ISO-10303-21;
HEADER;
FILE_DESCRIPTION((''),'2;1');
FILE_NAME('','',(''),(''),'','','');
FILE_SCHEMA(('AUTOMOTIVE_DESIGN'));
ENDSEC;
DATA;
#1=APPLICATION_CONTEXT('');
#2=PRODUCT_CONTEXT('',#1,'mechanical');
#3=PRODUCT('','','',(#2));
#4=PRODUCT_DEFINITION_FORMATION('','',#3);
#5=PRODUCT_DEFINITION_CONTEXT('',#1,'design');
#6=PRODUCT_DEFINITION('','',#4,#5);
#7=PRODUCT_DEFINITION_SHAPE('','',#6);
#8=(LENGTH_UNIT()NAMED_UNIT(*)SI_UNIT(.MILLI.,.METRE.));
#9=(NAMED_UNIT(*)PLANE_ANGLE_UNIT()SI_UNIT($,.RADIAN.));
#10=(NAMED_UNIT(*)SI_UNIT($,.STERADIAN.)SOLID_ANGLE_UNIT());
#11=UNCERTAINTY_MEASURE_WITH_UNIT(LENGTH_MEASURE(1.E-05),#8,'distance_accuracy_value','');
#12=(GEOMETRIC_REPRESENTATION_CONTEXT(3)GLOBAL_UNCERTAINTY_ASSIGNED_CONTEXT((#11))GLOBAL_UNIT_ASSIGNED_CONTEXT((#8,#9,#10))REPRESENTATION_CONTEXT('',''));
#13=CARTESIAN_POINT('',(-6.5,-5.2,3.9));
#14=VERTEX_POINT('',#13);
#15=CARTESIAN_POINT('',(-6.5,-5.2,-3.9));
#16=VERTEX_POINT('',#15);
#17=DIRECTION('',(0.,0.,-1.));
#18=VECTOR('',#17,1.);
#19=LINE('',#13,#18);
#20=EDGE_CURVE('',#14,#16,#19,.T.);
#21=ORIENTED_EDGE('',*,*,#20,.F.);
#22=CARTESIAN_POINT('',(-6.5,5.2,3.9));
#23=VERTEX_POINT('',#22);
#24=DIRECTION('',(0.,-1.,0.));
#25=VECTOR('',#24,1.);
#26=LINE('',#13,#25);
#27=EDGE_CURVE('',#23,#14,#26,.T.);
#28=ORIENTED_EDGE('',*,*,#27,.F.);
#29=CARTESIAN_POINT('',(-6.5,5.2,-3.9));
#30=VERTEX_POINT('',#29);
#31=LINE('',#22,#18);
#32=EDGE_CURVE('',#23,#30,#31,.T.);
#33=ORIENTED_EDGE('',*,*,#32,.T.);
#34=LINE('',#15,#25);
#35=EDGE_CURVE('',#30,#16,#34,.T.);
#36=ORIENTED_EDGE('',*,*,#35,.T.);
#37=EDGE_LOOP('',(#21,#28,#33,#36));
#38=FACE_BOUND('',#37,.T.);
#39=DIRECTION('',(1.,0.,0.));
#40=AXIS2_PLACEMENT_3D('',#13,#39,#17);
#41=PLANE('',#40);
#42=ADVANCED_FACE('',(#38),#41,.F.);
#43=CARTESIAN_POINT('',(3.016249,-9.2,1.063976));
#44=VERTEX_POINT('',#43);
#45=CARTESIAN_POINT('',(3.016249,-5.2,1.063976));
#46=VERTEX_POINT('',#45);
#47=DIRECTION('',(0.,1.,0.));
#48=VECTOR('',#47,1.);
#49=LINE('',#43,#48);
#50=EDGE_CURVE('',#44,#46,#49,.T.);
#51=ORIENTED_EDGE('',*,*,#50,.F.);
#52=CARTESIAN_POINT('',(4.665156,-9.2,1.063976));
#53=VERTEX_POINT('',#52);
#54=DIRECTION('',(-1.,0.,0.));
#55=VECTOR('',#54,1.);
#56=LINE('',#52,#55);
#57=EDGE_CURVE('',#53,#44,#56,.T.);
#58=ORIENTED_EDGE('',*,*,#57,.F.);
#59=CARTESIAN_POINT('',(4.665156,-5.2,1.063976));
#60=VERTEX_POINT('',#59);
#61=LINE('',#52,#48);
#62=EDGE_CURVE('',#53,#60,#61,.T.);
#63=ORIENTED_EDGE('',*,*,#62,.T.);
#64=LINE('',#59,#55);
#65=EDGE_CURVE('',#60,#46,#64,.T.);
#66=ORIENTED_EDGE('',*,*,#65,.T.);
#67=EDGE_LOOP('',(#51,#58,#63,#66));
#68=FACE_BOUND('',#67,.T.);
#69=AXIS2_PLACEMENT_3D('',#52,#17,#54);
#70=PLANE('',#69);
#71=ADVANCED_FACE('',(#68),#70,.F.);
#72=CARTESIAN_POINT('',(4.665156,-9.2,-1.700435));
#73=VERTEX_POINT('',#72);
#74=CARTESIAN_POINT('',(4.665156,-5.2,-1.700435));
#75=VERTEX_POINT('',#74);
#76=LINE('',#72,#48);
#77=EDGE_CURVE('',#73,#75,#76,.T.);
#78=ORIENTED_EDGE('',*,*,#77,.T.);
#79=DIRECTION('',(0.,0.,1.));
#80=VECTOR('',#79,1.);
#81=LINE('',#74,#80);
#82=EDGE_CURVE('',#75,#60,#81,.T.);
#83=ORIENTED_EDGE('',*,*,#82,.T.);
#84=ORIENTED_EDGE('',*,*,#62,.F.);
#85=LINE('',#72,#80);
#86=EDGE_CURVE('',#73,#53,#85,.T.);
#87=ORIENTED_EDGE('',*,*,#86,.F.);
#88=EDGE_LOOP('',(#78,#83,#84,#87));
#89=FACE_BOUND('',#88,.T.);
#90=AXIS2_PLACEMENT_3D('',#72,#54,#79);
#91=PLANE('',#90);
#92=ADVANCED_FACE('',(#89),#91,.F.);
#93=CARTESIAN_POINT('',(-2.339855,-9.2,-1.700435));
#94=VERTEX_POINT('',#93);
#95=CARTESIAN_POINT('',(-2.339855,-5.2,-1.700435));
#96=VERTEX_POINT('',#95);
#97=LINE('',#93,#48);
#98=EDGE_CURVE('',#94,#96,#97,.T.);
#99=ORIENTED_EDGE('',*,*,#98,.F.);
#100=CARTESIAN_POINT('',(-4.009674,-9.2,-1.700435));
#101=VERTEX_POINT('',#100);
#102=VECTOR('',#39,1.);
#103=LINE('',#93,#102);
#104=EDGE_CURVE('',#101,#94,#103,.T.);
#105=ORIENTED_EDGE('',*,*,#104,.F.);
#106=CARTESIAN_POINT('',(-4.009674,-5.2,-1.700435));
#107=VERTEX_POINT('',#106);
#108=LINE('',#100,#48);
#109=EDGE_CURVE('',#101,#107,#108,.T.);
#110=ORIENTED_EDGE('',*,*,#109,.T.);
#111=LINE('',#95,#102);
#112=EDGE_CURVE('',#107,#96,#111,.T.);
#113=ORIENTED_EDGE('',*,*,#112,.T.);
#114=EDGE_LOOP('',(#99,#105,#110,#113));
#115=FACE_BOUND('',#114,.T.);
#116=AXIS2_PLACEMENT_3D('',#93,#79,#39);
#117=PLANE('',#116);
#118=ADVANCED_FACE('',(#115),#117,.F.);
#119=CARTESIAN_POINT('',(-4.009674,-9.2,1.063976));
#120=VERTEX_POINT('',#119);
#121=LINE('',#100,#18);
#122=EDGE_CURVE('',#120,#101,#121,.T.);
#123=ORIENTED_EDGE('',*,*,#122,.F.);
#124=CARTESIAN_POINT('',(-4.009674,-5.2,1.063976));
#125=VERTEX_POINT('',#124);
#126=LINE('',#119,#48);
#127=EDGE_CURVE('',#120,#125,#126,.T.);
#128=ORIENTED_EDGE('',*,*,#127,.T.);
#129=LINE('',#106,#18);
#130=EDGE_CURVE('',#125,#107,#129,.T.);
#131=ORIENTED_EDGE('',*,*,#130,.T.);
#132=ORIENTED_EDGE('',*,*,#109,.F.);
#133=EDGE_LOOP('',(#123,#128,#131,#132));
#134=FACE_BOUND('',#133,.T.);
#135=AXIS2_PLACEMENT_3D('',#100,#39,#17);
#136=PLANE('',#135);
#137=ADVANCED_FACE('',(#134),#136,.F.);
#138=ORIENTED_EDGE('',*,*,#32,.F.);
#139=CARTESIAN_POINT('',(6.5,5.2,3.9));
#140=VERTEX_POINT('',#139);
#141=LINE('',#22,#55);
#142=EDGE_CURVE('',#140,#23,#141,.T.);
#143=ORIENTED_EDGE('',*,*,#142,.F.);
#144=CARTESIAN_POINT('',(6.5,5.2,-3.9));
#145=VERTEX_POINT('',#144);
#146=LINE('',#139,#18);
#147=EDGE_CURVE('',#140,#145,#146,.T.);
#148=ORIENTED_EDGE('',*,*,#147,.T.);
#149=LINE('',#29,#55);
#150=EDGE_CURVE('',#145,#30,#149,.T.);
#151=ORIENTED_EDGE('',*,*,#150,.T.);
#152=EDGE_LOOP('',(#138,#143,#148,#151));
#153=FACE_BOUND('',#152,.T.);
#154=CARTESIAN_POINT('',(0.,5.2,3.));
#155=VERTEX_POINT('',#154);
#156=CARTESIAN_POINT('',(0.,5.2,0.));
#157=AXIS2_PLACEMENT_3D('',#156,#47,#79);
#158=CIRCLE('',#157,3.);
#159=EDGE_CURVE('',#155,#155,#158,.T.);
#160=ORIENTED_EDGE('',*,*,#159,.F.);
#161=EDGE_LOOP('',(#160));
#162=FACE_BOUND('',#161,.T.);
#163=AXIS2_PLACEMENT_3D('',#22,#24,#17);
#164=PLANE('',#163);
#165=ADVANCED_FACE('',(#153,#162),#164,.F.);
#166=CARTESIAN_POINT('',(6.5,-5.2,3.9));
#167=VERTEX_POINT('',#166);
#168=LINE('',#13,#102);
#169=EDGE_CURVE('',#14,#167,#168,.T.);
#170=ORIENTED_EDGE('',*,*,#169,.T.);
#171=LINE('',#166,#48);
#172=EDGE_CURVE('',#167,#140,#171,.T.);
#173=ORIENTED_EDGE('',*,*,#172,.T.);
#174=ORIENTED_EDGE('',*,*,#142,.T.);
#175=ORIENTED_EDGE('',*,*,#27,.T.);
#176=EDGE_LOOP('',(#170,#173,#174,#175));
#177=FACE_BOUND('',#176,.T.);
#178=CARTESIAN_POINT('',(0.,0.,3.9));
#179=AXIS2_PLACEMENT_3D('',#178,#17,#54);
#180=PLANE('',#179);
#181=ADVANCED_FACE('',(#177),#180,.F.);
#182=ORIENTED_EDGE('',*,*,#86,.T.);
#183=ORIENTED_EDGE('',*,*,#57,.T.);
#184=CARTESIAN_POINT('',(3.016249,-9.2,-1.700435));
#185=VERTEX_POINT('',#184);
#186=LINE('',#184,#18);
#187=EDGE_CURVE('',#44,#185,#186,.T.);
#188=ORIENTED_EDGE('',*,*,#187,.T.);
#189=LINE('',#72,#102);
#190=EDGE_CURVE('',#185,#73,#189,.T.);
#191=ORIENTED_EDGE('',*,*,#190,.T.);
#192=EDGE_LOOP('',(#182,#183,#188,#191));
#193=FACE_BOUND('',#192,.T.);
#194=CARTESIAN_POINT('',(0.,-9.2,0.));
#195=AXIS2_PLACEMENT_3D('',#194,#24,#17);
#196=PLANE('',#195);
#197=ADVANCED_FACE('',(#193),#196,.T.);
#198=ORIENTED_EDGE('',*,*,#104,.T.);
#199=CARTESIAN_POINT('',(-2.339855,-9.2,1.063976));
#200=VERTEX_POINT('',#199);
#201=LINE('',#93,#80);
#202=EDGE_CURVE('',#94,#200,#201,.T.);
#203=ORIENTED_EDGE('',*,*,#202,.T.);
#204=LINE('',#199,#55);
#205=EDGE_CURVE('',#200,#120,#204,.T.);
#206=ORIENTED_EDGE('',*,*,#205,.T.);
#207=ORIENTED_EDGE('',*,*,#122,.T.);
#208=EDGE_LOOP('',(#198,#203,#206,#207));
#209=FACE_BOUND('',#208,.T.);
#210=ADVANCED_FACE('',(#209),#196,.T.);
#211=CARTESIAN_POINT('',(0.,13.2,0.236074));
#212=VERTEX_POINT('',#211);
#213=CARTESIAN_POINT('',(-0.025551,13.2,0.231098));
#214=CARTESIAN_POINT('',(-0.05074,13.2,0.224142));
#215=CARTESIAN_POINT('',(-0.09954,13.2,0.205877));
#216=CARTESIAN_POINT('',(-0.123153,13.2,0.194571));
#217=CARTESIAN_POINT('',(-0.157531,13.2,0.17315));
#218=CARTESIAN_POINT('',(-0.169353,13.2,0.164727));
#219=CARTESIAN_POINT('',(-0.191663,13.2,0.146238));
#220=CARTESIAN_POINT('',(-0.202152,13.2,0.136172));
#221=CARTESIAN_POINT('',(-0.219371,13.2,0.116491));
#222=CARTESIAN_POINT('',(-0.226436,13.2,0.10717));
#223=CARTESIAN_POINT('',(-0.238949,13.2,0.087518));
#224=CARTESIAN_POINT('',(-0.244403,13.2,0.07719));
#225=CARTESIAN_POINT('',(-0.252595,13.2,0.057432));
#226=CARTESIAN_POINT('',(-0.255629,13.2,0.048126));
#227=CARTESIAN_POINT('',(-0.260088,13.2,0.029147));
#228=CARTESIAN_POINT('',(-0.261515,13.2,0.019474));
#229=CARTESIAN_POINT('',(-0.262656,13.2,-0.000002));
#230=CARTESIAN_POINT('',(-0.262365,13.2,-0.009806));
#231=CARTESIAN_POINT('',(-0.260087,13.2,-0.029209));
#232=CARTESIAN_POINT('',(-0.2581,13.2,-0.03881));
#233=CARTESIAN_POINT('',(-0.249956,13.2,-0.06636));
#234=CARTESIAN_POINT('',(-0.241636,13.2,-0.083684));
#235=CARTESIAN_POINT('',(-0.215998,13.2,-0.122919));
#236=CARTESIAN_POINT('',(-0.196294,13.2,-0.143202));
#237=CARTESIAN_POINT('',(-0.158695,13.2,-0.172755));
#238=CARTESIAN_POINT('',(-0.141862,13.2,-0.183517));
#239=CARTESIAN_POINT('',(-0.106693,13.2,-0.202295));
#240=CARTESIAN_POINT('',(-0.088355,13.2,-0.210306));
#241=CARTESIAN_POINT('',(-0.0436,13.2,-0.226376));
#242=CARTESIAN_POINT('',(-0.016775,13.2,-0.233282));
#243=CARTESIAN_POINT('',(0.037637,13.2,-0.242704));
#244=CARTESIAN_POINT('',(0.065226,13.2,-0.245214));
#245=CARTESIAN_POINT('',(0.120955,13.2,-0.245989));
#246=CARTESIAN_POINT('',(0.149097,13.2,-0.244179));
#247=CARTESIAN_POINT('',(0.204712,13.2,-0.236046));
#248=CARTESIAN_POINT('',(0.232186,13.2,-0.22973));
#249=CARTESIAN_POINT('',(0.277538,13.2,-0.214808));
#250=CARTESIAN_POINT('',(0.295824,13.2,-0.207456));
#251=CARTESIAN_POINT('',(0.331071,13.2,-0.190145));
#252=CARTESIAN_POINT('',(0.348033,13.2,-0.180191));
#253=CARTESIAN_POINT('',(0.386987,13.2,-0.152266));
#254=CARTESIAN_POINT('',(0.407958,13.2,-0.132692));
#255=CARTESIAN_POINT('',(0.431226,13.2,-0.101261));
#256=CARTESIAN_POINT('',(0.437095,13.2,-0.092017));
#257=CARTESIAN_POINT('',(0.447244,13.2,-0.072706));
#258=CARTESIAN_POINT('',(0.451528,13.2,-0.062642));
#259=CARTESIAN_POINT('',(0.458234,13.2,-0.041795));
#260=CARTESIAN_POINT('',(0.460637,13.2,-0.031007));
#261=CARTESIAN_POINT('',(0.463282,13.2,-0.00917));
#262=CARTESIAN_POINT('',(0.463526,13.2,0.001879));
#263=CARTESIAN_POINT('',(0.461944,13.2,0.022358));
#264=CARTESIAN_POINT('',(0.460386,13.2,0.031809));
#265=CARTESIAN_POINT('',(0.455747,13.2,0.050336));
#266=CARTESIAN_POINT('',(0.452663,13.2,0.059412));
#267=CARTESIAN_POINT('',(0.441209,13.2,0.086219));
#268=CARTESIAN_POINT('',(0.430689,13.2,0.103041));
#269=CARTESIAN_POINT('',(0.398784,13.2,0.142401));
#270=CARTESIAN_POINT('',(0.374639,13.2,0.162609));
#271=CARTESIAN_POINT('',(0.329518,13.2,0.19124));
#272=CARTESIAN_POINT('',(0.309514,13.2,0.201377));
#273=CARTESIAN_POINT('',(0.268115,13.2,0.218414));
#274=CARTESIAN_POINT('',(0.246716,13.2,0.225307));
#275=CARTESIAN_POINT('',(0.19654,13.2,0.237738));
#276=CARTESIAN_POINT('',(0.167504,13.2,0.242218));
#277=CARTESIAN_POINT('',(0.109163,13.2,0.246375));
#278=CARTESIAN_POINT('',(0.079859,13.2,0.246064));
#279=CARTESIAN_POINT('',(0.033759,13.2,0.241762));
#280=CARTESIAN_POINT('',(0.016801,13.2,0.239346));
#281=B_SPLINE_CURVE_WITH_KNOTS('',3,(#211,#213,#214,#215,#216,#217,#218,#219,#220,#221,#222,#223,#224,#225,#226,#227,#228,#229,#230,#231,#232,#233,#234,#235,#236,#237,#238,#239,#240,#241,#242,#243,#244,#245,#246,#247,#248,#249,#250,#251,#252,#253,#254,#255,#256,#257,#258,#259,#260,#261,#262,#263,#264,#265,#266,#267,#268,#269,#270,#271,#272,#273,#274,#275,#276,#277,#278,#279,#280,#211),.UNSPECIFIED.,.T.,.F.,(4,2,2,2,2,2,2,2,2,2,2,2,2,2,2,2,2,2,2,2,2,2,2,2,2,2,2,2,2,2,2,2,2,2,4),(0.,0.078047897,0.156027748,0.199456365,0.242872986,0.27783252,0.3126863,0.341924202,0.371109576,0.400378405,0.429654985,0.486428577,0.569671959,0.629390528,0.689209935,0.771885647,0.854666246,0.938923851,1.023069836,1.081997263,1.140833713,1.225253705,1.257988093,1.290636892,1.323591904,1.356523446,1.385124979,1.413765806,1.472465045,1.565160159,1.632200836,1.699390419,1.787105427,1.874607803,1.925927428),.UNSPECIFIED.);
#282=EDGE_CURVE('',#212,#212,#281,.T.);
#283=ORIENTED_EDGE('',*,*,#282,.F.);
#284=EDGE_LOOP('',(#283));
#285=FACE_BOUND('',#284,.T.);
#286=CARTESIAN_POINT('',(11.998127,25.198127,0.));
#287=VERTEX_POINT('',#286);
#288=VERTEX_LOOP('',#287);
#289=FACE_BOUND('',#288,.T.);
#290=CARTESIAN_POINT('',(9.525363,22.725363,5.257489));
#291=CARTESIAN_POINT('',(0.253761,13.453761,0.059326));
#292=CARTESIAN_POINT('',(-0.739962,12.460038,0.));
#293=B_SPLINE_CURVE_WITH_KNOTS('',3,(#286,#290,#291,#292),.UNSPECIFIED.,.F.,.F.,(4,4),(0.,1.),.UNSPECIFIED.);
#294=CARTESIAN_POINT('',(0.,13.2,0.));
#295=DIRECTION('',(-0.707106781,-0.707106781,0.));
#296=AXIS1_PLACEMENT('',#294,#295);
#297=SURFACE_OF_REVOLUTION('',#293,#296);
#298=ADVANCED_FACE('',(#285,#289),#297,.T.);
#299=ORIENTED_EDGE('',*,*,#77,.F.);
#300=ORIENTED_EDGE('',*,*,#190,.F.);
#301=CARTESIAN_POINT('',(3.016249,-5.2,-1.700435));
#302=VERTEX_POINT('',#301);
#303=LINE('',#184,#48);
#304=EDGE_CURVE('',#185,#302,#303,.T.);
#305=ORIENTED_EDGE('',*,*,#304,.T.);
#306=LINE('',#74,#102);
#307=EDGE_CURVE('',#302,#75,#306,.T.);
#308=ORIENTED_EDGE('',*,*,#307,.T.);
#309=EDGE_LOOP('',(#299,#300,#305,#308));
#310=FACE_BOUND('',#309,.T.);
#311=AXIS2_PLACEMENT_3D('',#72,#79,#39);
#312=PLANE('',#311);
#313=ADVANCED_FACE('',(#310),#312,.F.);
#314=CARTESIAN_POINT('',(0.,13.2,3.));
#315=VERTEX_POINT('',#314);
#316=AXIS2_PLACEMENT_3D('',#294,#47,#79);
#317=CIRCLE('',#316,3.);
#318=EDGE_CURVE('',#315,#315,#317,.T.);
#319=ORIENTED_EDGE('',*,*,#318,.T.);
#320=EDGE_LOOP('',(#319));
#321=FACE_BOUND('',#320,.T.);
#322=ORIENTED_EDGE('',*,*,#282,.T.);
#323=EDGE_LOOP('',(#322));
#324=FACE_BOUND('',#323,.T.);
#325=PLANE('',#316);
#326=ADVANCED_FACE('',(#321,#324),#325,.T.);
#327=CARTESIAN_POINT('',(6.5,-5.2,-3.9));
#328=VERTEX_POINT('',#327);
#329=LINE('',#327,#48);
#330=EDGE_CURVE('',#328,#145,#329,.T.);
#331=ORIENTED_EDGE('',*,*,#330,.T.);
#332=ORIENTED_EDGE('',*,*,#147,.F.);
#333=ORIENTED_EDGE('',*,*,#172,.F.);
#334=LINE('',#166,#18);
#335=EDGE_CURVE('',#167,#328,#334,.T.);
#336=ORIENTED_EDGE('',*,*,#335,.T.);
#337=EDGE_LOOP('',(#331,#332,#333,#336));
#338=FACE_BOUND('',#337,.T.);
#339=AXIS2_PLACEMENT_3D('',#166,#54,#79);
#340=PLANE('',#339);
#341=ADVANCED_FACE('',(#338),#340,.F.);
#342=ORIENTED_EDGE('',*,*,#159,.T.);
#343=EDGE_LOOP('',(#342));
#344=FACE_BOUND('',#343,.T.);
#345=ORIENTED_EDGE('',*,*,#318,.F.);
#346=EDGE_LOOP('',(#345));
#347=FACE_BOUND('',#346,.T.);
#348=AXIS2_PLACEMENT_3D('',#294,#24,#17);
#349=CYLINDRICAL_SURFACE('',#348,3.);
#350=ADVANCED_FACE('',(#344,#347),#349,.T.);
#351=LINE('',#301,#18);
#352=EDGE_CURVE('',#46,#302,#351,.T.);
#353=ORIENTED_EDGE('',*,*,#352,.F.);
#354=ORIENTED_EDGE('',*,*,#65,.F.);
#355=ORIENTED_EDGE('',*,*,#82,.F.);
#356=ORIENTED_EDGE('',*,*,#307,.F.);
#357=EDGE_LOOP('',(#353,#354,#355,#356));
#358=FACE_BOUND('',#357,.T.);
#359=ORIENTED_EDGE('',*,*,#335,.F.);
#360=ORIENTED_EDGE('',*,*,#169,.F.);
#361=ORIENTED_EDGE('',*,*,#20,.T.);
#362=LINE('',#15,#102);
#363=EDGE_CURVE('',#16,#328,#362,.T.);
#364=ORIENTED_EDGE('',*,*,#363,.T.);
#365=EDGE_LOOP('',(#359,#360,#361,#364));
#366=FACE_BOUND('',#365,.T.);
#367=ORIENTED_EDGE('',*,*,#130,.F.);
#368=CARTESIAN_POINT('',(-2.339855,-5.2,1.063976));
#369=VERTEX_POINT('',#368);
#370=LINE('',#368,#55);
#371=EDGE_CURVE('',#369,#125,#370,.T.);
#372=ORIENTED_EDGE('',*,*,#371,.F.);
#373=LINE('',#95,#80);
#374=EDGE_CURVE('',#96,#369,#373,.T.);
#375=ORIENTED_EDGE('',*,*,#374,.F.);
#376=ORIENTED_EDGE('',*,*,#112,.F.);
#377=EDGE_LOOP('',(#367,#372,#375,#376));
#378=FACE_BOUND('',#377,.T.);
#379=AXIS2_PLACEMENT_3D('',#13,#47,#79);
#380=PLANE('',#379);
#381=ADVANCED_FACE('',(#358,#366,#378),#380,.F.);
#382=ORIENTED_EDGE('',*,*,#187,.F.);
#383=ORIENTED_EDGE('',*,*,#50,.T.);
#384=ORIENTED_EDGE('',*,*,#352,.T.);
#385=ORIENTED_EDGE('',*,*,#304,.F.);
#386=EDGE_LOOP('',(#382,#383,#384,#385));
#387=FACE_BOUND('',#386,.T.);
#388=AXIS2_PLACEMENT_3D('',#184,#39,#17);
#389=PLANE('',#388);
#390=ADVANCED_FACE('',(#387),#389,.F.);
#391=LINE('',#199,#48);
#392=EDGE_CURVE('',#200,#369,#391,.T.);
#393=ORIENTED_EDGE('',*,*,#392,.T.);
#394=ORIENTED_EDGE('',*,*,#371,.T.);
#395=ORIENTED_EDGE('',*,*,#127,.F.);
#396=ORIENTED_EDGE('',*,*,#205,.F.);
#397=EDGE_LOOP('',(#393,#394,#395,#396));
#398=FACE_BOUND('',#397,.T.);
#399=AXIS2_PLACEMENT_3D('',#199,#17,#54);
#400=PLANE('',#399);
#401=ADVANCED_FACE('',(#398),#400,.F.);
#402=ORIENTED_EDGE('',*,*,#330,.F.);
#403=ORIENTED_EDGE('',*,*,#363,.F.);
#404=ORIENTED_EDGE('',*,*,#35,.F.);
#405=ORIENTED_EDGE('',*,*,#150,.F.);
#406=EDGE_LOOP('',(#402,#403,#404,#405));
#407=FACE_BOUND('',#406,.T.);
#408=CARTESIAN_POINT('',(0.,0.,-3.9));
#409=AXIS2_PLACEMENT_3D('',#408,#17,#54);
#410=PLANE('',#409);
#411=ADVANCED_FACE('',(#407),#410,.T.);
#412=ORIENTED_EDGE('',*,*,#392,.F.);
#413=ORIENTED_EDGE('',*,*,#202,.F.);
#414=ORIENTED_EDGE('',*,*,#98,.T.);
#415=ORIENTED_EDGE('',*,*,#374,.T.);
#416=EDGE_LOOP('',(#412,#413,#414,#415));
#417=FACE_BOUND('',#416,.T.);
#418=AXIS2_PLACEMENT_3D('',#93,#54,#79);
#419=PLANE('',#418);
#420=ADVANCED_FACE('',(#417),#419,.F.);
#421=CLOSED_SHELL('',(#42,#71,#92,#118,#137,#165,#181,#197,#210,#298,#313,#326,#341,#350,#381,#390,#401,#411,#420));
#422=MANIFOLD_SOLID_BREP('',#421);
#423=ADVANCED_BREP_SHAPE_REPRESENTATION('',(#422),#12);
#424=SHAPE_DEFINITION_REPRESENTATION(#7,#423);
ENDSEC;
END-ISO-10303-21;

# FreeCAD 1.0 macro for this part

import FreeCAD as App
import Part
import Sketcher
from FreeCAD import Vector

doc = App.newDocument("Part")
body = doc.addObject("PartDesign::Body", "Body")

sketch1 = doc.addObject("Sketcher::SketchObject", "Sketch")
body.addObject(sketch1)
sketch1.AttachmentSupport = (doc.XY_Plane, [""])
sketch1.MapMode = "FlatFace"
sketch1.addGeometry([
    Part.LineSegment(Vector(-6.5, 5.2, 0), Vector(-6.5, -5.2, 0)),
    Part.LineSegment(Vector(-6.5, -5.2, 0), Vector(6.5, -5.2, 0)),
    Part.LineSegment(Vector(6.5, -5.2, 0), Vector(6.5, 5.2, 0)),
    Part.LineSegment(Vector(6.5, 5.2, 0), Vector(-6.5, 5.2, 0)),
], False)
sketch1.addConstraint([
    Sketcher.Constraint("Coincident", 0, 2, 1, 1),
    Sketcher.Constraint("Coincident", 1, 2, 2, 1),
    Sketcher.Constraint("Coincident", 2, 2, 3, 1),
    Sketcher.Constraint("Coincident", 3, 2, 0, 1),
    Sketcher.Constraint("Vertical", 0),
    Sketcher.Constraint("Horizontal", 1),
    Sketcher.Constraint("Vertical", 2),
    Sketcher.Constraint("Horizontal", 3),
    Sketcher.Constraint("Symmetric", 0, 2, 2, 2, -1, 1),
    Sketcher.Constraint("DistanceX", 1, 1, 1, 2, 13.0),
    Sketcher.Constraint("DistanceY", 0, 2, 0, 1, 10.4),
])
pad1 = doc.addObject("PartDesign::Pad", "Pad")
body.addObject(pad1)
pad1.Profile = sketch1
pad1.Length = 7.8
pad1.Midplane = True

sketch2 = doc.addObject("Sketcher::SketchObject", "Sketch001")
body.addObject(sketch2)
sketch2.AttachmentSupport = (doc.XZ_Plane, [""])
sketch2.MapMode = "FlatFace"
sketch2.AttachmentOffset = App.Placement(Vector(0, 0, -5.2), App.Rotation())
sketch2.addGeometry(Part.Circle(Vector(0, 0, 0), Vector(0, 0, 1), 3), False)
sketch2.addConstraint([
    Sketcher.Constraint("Coincident", 0, 3, -1, 1),
    Sketcher.Constraint("Diameter", 0, 6.0),
])
pad2 = doc.addObject("PartDesign::Pad", "Pad001")
body.addObject(pad2)
pad2.Profile = sketch2
pad2.Length = 8
pad2.Reversed = True

sketch3 = doc.addObject("Sketcher::SketchObject", "Sketch002")
body.addObject(sketch3)
sketch3.Placement = App.Placement(Vector(-6.6, 6.6, 0), App.Rotation(Vector(-0.707106781, -0.707106781, 0), Vector(0, 0, -0.999999999), Vector(0.707106781, -0.707106781, 0), "ZXY"))
sketch3.addGeometry([
    Part.LineSegment(Vector(-8.287346, 0, 0), Vector(-26.301724, 0, 0)),
    Part.BSplineCurve([Vector(-8.287346, 0, 0), Vector(-9.692681, -0.059326, 0), Vector(-22.804707, -5.257489, 0), Vector(-26.301724, 0, 0)], [4, 4], [0, 1], False, 3, [1, 1, 1, 1], False),
], False)
sketch3.addConstraint([
    Sketcher.Constraint("Block", 1),
    Sketcher.Constraint("Coincident", 0, 1, 1, 1),
    Sketcher.Constraint("Coincident", 1, 2, 0, 2),
])
revolution = doc.addObject("PartDesign::Revolution", "Revolution")
body.addObject(revolution)
revolution.Profile = sketch3
revolution.ReferenceAxis = (sketch3, ["H_Axis"])
revolution.Angle = 360

sketch4 = doc.addObject("Sketcher::SketchObject", "Sketch003")
body.addObject(sketch4)
sketch4.AttachmentSupport = (doc.XZ_Plane, [""])
sketch4.MapMode = "FlatFace"
sketch4.AttachmentOffset = App.Placement(Vector(0, 0, 5.2), App.Rotation())
sketch4.addGeometry([
    Part.LineSegment(Vector(-4.009674, 1.063976, 0), Vector(-4.009674, -1.700436, 0)),
    Part.LineSegment(Vector(-4.009674, -1.700436, 0), Vector(-2.339855, -1.700436, 0)),
    Part.LineSegment(Vector(-2.339855, -1.700436, 0), Vector(-2.339855, 1.063976, 0)),
    Part.LineSegment(Vector(-2.339855, 1.063976, 0), Vector(-4.009674, 1.063976, 0)),
    Part.LineSegment(Vector(3.016249, 1.063976, 0), Vector(3.016249, -1.700436, 0)),
    Part.LineSegment(Vector(3.016249, -1.700436, 0), Vector(4.665156, -1.700436, 0)),
    Part.LineSegment(Vector(4.665156, -1.700436, 0), Vector(4.665156, 1.063976, 0)),
    Part.LineSegment(Vector(4.665156, 1.063976, 0), Vector(3.016249, 1.063976, 0)),
], False)
sketch4.addConstraint([
    Sketcher.Constraint("Coincident", 0, 2, 1, 1),
    Sketcher.Constraint("Coincident", 1, 2, 2, 1),
    Sketcher.Constraint("Coincident", 2, 2, 3, 1),
    Sketcher.Constraint("Coincident", 3, 2, 0, 1),
    Sketcher.Constraint("Coincident", 4, 2, 5, 1),
    Sketcher.Constraint("Coincident", 5, 2, 6, 1),
    Sketcher.Constraint("Coincident", 6, 2, 7, 1),
    Sketcher.Constraint("Coincident", 7, 2, 4, 1),
    Sketcher.Constraint("Vertical", 0),
    Sketcher.Constraint("Horizontal", 1),
    Sketcher.Constraint("Vertical", 2),
    Sketcher.Constraint("Horizontal", 3),
    Sketcher.Constraint("Vertical", 4),
    Sketcher.Constraint("Horizontal", 5),
    Sketcher.Constraint("Vertical", 6),
    Sketcher.Constraint("Horizontal", 7),
    Sketcher.Constraint("Horizontal", 1, 2, 4, 2),
    Sketcher.Constraint("Horizontal", 3, 2, 6, 2),
    Sketcher.Constraint("DistanceX", 1, 1, 1, 2, 1.669819),
    Sketcher.Constraint("DistanceY", 0, 2, 0, 1, 2.764412),
    Sketcher.Constraint("DistanceX", 5, 1, 5, 2, 1.648907),
    Sketcher.Constraint("DistanceX", -1, 1, 4, 2, 3.016249),
    Sketcher.Constraint("DistanceX", 1, 2, 5, 2, 7.005011),
    Sketcher.Constraint("DistanceY", 0, 2, -1, 1, 1.700436),
])
pad3 = doc.addObject("PartDesign::Pad", "Pad002")
body.addObject(pad3)
pad3.Profile = sketch4
pad3.Length = 4

doc.recompute()
